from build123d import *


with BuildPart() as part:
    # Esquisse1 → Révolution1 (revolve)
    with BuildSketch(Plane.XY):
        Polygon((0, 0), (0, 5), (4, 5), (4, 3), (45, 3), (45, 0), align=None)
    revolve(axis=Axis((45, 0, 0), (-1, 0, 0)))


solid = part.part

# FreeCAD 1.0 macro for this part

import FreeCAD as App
import Part
import Sketcher

doc = App.newDocument("Part")
body = doc.addObject("PartDesign::Body", "Body")

sketch1 = doc.addObject("Sketcher::SketchObject", "Sketch")
body.addObject(sketch1)
sketch1.AttachmentSupport = (doc.XY_Plane, [""])
sketch1.MapMode = "FlatFace"
sketch1.addGeometry(Part.LineSegment(App.Vector(0, 5, 0), App.Vector(0, 0, 0)), False)
sketch1.addGeometry(Part.LineSegment(App.Vector(0, 0, 0), App.Vector(45, 0, 0)), False)
sketch1.addGeometry(Part.LineSegment(App.Vector(45, 0, 0), App.Vector(45, 3, 0)), False)
sketch1.addGeometry(Part.LineSegment(App.Vector(45, 3, 0), App.Vector(4, 3, 0)), False)
sketch1.addGeometry(Part.LineSegment(App.Vector(4, 3, 0), App.Vector(4, 5, 0)), False)
sketch1.addGeometry(Part.LineSegment(App.Vector(4, 5, 0), App.Vector(0, 5, 0)), False)
sketch1.addConstraint(Sketcher.Constraint("Coincident", 0, 2, 1, 1))
sketch1.addConstraint(Sketcher.Constraint("Coincident", 1, 2, 2, 1))
sketch1.addConstraint(Sketcher.Constraint("Coincident", 2, 2, 3, 1))
sketch1.addConstraint(Sketcher.Constraint("Coincident", 3, 2, 4, 1))
sketch1.addConstraint(Sketcher.Constraint("Coincident", 4, 2, 5, 1))
sketch1.addConstraint(Sketcher.Constraint("Coincident", 5, 2, 0, 1))
sketch1.addConstraint(Sketcher.Constraint("Vertical", 0))
sketch1.addConstraint(Sketcher.Constraint("Horizontal", 1))
sketch1.addConstraint(Sketcher.Constraint("Vertical", 2))
sketch1.addConstraint(Sketcher.Constraint("Horizontal", 3))
sketch1.addConstraint(Sketcher.Constraint("Vertical", 4))
sketch1.addConstraint(Sketcher.Constraint("Horizontal", 5))
sketch1.addConstraint(Sketcher.Constraint("Coincident", 0, 2, -1, 1))
sketch1.addConstraint(Sketcher.Constraint("DistanceX", 1, 1, 1, 2, 45.0))
sketch1.addConstraint(Sketcher.Constraint("DistanceX", 3, 2, 3, 1, 41.0))
sketch1.addConstraint(Sketcher.Constraint("DistanceY", 0, 2, 0, 1, 5.0))
sketch1.addConstraint(Sketcher.Constraint("DistanceY", 2, 1, 2, 2, 3.0))
revolution = doc.addObject("PartDesign::Revolution", "Revolution")
body.addObject(revolution)
revolution.Profile = sketch1
revolution.ReferenceAxis = (sketch1, ["H_Axis"])
revolution.Angle = 360

doc.recompute()
